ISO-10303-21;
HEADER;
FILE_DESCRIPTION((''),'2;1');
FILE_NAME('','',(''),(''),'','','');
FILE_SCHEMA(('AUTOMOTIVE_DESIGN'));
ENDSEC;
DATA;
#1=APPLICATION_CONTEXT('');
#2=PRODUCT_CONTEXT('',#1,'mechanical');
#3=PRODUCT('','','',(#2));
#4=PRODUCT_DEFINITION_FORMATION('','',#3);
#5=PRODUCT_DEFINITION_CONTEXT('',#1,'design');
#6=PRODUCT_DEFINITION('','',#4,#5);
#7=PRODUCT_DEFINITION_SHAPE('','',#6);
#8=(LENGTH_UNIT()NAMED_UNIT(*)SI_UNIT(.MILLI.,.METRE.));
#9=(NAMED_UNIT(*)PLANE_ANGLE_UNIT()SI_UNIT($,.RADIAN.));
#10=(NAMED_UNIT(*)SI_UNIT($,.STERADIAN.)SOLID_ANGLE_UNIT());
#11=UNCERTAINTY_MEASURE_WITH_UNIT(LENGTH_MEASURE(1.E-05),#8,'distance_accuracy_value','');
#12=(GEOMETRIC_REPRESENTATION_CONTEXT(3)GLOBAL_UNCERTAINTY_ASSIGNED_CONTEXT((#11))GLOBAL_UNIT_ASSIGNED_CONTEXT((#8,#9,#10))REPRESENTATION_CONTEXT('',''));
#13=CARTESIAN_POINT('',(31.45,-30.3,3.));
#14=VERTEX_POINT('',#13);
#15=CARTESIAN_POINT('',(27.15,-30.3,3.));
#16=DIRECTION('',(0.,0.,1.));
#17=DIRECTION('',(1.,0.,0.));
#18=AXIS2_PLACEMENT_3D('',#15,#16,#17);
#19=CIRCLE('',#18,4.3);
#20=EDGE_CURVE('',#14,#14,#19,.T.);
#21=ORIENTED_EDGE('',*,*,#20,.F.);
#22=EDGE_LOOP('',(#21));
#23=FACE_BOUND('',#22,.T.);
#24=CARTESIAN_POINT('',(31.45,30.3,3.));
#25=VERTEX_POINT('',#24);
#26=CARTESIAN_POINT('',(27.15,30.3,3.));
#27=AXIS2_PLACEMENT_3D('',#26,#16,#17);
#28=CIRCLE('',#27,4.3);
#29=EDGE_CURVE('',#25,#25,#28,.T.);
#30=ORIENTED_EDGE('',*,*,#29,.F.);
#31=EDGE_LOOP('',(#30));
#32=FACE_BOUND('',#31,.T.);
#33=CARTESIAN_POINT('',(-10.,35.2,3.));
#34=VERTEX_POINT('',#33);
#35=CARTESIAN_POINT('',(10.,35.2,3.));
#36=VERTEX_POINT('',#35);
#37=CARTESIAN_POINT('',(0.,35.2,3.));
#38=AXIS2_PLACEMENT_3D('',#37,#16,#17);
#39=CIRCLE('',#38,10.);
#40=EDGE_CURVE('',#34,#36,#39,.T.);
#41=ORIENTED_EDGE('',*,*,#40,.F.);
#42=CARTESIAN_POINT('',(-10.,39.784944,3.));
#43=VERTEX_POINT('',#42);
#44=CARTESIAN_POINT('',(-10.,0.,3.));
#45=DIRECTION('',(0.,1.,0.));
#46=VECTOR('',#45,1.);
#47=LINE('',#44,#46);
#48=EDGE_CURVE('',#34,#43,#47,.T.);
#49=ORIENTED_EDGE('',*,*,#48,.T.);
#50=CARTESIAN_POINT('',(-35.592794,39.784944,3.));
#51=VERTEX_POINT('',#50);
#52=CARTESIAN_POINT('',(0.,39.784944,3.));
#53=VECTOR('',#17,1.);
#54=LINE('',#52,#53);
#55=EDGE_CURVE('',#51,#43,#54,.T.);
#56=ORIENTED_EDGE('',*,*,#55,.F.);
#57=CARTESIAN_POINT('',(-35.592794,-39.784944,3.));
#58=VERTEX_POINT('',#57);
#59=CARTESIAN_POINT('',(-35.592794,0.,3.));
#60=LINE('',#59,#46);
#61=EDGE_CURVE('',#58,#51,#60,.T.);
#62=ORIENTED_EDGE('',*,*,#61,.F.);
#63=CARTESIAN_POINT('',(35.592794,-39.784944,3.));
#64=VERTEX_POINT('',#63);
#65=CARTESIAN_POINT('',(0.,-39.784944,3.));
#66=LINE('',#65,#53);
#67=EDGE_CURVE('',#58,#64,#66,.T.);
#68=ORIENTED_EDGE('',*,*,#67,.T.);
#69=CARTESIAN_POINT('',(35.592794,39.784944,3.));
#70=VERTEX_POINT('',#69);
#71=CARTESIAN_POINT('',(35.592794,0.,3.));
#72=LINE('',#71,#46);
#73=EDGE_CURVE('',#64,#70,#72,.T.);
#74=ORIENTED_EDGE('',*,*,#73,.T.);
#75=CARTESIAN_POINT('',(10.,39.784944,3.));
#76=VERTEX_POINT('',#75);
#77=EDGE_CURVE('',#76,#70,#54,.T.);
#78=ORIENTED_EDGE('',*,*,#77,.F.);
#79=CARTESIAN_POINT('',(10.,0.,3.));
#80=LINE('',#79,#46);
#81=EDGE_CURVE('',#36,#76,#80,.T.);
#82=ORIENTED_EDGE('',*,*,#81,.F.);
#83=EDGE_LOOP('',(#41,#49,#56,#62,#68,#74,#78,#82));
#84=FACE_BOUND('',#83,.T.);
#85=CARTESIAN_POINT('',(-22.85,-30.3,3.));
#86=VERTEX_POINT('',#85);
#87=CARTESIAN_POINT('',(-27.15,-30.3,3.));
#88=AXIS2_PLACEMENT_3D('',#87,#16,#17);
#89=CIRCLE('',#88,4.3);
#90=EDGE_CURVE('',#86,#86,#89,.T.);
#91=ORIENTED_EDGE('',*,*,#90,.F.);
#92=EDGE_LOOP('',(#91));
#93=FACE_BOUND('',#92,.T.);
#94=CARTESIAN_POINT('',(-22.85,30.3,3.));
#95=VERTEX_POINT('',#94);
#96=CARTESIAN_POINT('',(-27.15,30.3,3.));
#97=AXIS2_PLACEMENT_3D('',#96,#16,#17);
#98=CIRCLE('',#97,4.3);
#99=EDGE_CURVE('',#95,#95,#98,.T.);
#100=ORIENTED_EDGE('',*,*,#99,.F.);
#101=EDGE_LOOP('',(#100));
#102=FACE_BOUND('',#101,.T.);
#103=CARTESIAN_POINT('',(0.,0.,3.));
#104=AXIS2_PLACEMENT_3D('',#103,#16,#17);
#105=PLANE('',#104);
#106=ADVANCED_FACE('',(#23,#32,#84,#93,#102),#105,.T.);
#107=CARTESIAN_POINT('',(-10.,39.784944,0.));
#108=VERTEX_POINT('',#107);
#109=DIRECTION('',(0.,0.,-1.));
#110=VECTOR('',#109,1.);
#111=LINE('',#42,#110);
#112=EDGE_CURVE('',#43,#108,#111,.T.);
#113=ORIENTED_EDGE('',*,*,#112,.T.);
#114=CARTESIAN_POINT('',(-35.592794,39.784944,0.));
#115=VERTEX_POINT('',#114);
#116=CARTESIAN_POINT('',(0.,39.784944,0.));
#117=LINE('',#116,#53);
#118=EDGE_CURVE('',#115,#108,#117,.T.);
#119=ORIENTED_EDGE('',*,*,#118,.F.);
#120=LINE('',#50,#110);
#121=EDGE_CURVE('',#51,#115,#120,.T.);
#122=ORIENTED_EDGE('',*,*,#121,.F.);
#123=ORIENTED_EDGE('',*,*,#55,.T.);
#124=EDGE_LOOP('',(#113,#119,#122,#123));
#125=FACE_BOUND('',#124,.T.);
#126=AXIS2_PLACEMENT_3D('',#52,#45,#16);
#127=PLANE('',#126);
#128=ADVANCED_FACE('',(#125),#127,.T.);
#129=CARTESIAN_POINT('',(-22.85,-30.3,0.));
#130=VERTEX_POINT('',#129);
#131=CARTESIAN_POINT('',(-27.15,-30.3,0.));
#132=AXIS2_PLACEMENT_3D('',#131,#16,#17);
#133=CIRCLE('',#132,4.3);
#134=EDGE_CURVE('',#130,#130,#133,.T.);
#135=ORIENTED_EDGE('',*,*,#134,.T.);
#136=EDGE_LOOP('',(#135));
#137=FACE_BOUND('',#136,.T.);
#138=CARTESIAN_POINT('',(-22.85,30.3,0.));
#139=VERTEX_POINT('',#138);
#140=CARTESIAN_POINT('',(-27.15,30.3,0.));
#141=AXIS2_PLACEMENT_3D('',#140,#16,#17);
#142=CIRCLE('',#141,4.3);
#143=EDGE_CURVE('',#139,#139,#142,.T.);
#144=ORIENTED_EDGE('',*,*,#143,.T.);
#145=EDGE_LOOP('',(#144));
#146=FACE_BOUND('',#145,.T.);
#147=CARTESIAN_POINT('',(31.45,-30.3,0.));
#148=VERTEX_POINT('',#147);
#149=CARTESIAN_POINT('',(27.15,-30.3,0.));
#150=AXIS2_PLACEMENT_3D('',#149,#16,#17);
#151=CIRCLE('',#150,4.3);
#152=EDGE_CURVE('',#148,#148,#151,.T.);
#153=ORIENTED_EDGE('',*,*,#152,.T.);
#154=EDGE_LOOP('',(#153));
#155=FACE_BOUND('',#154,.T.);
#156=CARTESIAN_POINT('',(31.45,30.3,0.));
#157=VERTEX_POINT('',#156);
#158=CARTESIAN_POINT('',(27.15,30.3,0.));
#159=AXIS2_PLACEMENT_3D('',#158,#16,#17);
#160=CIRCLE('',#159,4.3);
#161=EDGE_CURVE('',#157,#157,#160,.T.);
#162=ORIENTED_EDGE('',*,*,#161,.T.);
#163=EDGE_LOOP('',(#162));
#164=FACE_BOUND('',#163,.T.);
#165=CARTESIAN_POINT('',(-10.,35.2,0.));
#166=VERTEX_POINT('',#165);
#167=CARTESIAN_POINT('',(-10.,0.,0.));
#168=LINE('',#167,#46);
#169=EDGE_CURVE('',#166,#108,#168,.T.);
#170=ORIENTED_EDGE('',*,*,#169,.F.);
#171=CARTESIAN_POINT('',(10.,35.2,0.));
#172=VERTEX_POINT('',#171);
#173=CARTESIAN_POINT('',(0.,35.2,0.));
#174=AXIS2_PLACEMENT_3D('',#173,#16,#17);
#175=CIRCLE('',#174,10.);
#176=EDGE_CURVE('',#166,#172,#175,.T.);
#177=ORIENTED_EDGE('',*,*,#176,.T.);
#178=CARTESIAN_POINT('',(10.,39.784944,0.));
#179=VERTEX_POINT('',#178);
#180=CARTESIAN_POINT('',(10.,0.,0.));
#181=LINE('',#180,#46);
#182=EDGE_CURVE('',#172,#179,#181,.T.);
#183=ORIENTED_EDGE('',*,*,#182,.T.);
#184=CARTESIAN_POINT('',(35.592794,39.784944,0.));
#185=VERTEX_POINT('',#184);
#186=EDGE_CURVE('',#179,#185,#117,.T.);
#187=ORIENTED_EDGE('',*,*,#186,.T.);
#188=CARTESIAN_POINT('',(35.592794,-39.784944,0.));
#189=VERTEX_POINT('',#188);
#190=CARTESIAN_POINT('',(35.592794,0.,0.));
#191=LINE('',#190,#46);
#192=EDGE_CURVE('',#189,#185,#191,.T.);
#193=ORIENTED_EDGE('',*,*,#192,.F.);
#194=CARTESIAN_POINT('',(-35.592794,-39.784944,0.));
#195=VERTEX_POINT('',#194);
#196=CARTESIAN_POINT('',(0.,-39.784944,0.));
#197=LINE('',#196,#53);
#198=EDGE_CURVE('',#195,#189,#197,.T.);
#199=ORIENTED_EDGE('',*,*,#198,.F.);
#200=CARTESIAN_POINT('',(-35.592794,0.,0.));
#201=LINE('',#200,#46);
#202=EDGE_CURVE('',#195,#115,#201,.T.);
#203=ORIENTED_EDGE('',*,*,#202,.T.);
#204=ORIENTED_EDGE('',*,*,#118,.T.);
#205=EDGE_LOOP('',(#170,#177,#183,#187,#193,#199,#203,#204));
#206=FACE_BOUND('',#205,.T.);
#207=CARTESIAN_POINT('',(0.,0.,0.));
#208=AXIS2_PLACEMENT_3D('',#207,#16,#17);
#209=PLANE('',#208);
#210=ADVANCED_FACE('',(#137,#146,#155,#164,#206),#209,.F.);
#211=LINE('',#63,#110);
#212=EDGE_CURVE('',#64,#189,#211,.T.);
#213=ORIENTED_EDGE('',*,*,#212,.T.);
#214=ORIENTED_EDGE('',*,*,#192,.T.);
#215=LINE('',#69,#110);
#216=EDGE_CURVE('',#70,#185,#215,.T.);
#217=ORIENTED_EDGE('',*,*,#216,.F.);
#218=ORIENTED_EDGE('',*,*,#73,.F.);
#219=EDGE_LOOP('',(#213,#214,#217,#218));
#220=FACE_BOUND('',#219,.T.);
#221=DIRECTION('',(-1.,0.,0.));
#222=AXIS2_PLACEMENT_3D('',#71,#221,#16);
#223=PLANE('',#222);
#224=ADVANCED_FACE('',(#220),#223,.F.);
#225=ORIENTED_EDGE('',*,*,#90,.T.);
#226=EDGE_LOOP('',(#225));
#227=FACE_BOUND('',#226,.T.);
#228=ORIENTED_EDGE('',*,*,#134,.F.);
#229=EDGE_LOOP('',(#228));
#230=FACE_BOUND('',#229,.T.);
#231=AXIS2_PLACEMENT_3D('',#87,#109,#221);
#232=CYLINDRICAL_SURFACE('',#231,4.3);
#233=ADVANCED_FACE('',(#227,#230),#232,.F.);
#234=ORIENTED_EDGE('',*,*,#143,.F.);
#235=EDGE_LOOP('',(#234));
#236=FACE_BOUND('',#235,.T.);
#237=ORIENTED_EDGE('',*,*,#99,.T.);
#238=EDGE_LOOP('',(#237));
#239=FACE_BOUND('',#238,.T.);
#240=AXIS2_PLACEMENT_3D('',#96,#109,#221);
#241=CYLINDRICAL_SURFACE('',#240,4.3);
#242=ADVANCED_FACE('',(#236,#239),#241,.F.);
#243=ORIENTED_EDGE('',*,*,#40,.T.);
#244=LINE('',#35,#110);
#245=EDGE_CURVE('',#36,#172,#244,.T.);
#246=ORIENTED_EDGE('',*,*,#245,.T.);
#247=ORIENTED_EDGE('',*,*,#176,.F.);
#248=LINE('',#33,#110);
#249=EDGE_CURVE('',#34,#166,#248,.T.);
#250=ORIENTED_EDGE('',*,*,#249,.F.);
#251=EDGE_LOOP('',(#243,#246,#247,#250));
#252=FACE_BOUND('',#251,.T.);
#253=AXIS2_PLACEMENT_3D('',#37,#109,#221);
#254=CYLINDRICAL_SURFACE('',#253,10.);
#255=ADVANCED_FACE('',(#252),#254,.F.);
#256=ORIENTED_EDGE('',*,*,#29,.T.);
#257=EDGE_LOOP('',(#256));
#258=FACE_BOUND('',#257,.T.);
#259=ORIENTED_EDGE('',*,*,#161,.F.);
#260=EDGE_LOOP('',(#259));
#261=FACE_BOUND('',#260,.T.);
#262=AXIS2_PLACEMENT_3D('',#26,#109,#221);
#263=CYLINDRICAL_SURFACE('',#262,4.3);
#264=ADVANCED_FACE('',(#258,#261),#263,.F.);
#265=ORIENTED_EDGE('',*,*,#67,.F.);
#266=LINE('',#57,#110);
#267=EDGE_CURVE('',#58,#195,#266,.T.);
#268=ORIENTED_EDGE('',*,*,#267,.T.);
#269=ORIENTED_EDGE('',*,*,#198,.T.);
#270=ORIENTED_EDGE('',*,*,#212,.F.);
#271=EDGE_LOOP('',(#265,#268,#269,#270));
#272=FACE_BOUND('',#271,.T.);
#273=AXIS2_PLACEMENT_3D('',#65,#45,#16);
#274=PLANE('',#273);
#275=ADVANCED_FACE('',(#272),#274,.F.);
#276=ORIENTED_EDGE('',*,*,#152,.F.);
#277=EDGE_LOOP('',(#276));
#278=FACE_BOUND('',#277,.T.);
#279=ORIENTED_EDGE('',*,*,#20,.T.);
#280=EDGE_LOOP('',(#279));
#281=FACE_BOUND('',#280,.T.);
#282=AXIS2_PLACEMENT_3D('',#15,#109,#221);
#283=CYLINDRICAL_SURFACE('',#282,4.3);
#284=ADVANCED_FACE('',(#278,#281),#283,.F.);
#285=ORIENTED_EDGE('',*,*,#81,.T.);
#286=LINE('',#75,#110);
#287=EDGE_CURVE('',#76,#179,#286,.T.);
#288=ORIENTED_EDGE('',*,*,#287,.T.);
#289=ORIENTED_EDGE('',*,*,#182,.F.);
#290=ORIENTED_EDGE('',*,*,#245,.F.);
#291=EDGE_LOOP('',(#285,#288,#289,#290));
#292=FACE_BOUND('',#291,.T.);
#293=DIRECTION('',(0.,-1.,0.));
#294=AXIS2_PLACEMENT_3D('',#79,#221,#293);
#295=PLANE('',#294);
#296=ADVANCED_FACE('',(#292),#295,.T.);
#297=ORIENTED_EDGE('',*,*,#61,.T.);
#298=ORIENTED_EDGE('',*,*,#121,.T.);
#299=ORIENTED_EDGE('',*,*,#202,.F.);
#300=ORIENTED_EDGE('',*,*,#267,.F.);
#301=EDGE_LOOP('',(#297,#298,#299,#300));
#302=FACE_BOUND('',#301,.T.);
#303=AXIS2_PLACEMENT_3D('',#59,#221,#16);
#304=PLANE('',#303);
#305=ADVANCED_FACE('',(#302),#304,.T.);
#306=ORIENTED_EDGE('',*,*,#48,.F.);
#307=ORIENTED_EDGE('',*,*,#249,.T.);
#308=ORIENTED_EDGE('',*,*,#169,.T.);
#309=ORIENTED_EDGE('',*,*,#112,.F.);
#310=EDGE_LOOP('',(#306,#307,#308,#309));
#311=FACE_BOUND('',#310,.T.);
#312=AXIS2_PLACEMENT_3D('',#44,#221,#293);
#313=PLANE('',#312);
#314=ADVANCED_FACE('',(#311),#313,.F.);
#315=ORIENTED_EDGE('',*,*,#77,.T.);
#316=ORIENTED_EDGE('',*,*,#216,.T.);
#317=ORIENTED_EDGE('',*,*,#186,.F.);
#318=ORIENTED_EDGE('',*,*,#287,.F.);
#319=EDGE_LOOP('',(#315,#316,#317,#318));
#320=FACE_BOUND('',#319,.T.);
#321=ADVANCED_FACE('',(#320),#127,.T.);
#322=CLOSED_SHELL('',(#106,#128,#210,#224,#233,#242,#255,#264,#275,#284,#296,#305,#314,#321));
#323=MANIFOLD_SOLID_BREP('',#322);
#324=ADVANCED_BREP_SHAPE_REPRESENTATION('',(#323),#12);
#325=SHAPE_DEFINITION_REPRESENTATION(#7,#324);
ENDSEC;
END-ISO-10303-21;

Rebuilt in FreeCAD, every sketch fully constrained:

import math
import FreeCAD as App
import Part
import Sketcher
Q = App.Units.Quantity

doc = App.newDocument("Part")
body = doc.addObject("PartDesign::Body", "Body")

# Sketch on XY plane
sketch1 = body.newObject("Sketcher::SketchObject", "Sketch")
sketch1.AttachmentSupport = (doc.getObject("XY_Plane"), [""])
sketch1.MapMode = "FlatFace"
sketch1.addGeometry([
    Part.LineSegment(App.Vector(-35.6, 39.8, 0), App.Vector(-35.6, -39.8, 0)),  # 0
    Part.LineSegment(App.Vector(-35.6, -39.8, 0), App.Vector(35.6, -39.8, 0)),  # 1
    Part.LineSegment(App.Vector(35.6, -39.8, 0), App.Vector(35.6, 39.8, 0)),  # 2
    Part.LineSegment(App.Vector(35.6, 39.8, 0), App.Vector(10, 39.8, 0)),  # 3
    Part.LineSegment(App.Vector(10, 39.8, 0), App.Vector(10, 35.2, 0)),  # 4
    Part.ArcOfCircle(Part.Circle(App.Vector(0, 35.2, 0), App.Vector(0, 0, 1), 10), math.radians(180), math.radians(360)),  # 5
    Part.LineSegment(App.Vector(-10, 35.2, 0), App.Vector(-10, 39.8, 0)),  # 6
    Part.LineSegment(App.Vector(-10, 39.8, 0), App.Vector(-35.6, 39.8, 0)),  # 7
    Part.Circle(App.Vector(-27.1, -30.3, 0), App.Vector(0, 0, 1), 4.3),  # 8
    Part.Circle(App.Vector(27.1, -30.3, 0), App.Vector(0, 0, 1), 4.3),  # 9
    Part.Circle(App.Vector(-27.1, 30.3, 0), App.Vector(0, 0, 1), 4.3),  # 10
    Part.Circle(App.Vector(27.1, 30.3, 0), App.Vector(0, 0, 1), 4.3),  # 11
], False)
sketch1.addConstraint([
    Sketcher.Constraint("Coincident", 0, 2, 1, 1),
    Sketcher.Constraint("Coincident", 1, 2, 2, 1),
    Sketcher.Constraint("Coincident", 2, 2, 3, 1),
    Sketcher.Constraint("Coincident", 3, 2, 4, 1),
    Sketcher.Constraint("Tangent", 4, 2, 5, 2),
    Sketcher.Constraint("Tangent", 5, 1, 6, 1),
    Sketcher.Constraint("Coincident", 6, 2, 7, 1),
    Sketcher.Constraint("Coincident", 7, 2, 0, 1),
    Sketcher.Constraint("Vertical", 0),
    Sketcher.Constraint("Horizontal", 1),
    Sketcher.Constraint("Vertical", 2),
    Sketcher.Constraint("Horizontal", 3),
    Sketcher.Constraint("Vertical", 4),
    Sketcher.Constraint("Vertical", 6),
    Sketcher.Constraint("Horizontal", 7),
    Sketcher.Constraint("Equal", 8, 9),
    Sketcher.Constraint("Equal", 9, 10),
    Sketcher.Constraint("Equal", 10, 11),
    Sketcher.Constraint("Symmetric", 9, 3, 10, 3, -1, 1),
    Sketcher.Constraint("Symmetric", 8, 3, 11, 3, -1, 1),
    Sketcher.Constraint("Symmetric", 0, 2, 2, 2, -1, 1),
    Sketcher.Constraint("Symmetric", 8, 3, 9, 3, -2),
    Sketcher.Constraint("Symmetric", 3, 2, 6, 2, -2),
    Sketcher.Constraint("Radius", 5, Q("10 mm")),
    Sketcher.Constraint("Diameter", 8, Q("8.6 mm")),
    Sketcher.Constraint("DistanceY", -1, 1, 5, 3, Q("35.2 mm")),
    Sketcher.Constraint("DistanceY", 8, 3, -1, 1, Q("30.3 mm")),
    Sketcher.Constraint("DistanceX", 8, 3, 9, 3, Q("54.3 mm")),
    Sketcher.Constraint("DistanceX", 1, 1, 1, 2, Q("71.185588 mm")),
    Sketcher.Constraint("DistanceY", 0, 2, 0, 1, Q("79.569888 mm")),
])
pad1 = body.newObject("PartDesign::Pad", "Pad")
pad1.Profile = sketch1
pad1.Length = 3

doc.recompute()
